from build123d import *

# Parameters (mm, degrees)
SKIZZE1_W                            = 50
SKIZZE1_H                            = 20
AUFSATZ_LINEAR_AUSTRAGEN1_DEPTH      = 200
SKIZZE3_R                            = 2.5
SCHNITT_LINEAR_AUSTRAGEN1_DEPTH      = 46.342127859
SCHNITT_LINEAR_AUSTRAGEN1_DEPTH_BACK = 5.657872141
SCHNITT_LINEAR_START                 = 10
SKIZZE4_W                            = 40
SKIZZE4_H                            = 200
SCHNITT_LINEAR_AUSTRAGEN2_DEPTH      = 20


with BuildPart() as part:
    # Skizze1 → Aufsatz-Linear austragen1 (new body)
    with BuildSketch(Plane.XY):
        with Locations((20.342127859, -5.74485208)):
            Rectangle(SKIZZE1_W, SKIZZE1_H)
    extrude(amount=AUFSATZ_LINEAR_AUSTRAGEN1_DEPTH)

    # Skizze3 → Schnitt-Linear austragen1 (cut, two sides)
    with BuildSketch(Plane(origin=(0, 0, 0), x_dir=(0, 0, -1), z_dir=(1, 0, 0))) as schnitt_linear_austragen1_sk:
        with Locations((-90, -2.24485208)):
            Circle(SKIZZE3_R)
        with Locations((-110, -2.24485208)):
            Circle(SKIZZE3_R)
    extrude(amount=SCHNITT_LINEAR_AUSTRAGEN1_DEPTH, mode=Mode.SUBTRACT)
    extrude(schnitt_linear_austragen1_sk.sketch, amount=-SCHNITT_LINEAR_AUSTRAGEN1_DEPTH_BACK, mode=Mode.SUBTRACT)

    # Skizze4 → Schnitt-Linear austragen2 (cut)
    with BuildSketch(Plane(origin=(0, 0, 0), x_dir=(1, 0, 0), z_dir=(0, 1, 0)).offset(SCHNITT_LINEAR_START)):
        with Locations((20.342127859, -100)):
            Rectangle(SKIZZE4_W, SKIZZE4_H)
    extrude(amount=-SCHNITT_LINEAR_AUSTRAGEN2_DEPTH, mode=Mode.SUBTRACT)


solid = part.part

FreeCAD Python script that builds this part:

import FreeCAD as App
import Part
import Sketcher

V = App.Vector
Q = App.Units.Quantity

doc = App.newDocument("Part")
params = doc.addObject("Spreadsheet::Sheet", "Params")
for row, (alias, value) in enumerate([
    ("sketch1_width", "50 mm"),
    ("sketch1_height", "20 mm"),
    ("pad1_length", "200 mm"),
    ("sketch2_diameter", "5 mm"),
    ("sketch3_width", "40 mm"),
    ("sketch3_height", "200 mm"),
    ("pocket2_length", "20 mm"),
], start=1):
    params.set(f"A{row}", alias)
    params.set(f"B{row}", "=" + value)
    params.setAlias(f"B{row}", alias)

body = doc.addObject("PartDesign::Body", "Body")

# Sketch on XY plane
sketch1 = doc.addObject("Sketcher::SketchObject", "Sketch")
body.addObject(sketch1)
sketch1.AttachmentSupport = (doc.XY_Plane, [""])
sketch1.MapMode = "FlatFace"
sketch1.addGeometry(Part.LineSegment(V(-4.657872, 4.255148, 0), V(-4.657872, -15.744852, 0)), False)
sketch1.addGeometry(Part.LineSegment(V(-4.657872, -15.744852, 0), V(45.342128, -15.744852, 0)), False)
sketch1.addGeometry(Part.LineSegment(V(45.342128, -15.744852, 0), V(45.342128, 4.255148, 0)), False)
sketch1.addGeometry(Part.LineSegment(V(45.342128, 4.255148, 0), V(-4.657872, 4.255148, 0)), False)
sketch1.addConstraint(Sketcher.Constraint("Coincident", 0, 2, 1, 1))
sketch1.addConstraint(Sketcher.Constraint("Coincident", 1, 2, 2, 1))
sketch1.addConstraint(Sketcher.Constraint("Coincident", 2, 2, 3, 1))
sketch1.addConstraint(Sketcher.Constraint("Coincident", 3, 2, 0, 1))
sketch1.addConstraint(Sketcher.Constraint("Vertical", 0))
sketch1.addConstraint(Sketcher.Constraint("Horizontal", 1))
sketch1.addConstraint(Sketcher.Constraint("Vertical", 2))
sketch1.addConstraint(Sketcher.Constraint("Horizontal", 3))
sketch1.addConstraint(Sketcher.Constraint("DistanceX", 1, 1, 1, 2, Q("50 mm")))
sketch1.addConstraint(Sketcher.Constraint("DistanceY", 0, 2, 0, 1, Q("20 mm")))
sketch1.addConstraint(Sketcher.Constraint("DistanceX", 0, 2, -1, 1, Q("4.657872 mm")))
sketch1.addConstraint(Sketcher.Constraint("DistanceY", 0, 2, -1, 1, Q("15.744852 mm")))
sketch1.setExpression("Constraints[8]", "Params.sketch1_width")
sketch1.setExpression("Constraints[9]", "Params.sketch1_height")
pad1 = doc.addObject("PartDesign::Pad", "Pad")
body.addObject(pad1)
pad1.Profile = sketch1
pad1.setExpression("Length", "Params.pad1_length")

# Sketch on YZ plane
sketch2 = doc.addObject("Sketcher::SketchObject", "Sketch001")
body.addObject(sketch2)
sketch2.AttachmentSupport = (doc.YZ_Plane, [""])
sketch2.MapMode = "FlatFace"
sketch2.addGeometry(Part.Circle(V(-2.244852, 90, 0), V(0, 0, 1), 2.5), False)
sketch2.addGeometry(Part.Circle(V(-2.244852, 110, 0), V(0, 0, 1), 2.5), False)
sketch2.addConstraint(Sketcher.Constraint("Equal", 0, 1))
sketch2.addConstraint(Sketcher.Constraint("Vertical", 0, 3, 1, 3))
sketch2.addConstraint(Sketcher.Constraint("Diameter", 0, Q("5 mm")))
sketch2.addConstraint(Sketcher.Constraint("DistanceY", -1, 1, 0, 3, Q("90 mm")))
sketch2.addConstraint(Sketcher.Constraint("DistanceY", -1, 1, 1, 3, Q("110 mm")))
sketch2.addConstraint(Sketcher.Constraint("DistanceX", 0, 3, -1, 1, Q("2.244852 mm")))
sketch2.setExpression("Constraints[2]", "Params.sketch2_diameter")
pocket1 = doc.addObject("PartDesign::Pocket", "Pocket")
body.addObject(pocket1)
pocket1.Profile = sketch2
pocket1.Type = "ThroughAll"
pocket1.Midplane = True

# Sketch on XZ plane
sketch3 = doc.addObject("Sketcher::SketchObject", "Sketch002")
body.addObject(sketch3)
sketch3.AttachmentSupport = (doc.XZ_Plane, [""])
sketch3.MapMode = "FlatFace"
sketch3.AttachmentOffset = App.Placement(V(0, 0, -10), App.Rotation())
sketch3.addGeometry(Part.LineSegment(V(0.342128, 0, 0), V(0.342128, 200, 0)), False)
sketch3.addGeometry(Part.LineSegment(V(0.342128, 200, 0), V(40.342128, 200, 0)), False)
sketch3.addGeometry(Part.LineSegment(V(40.342128, 200, 0), V(40.342128, 0, 0)), False)
sketch3.addGeometry(Part.LineSegment(V(40.342128, 0, 0), V(0.342128, 0, 0)), False)
sketch3.addConstraint(Sketcher.Constraint("Coincident", 0, 2, 1, 1))
sketch3.addConstraint(Sketcher.Constraint("Coincident", 1, 2, 2, 1))
sketch3.addConstraint(Sketcher.Constraint("Coincident", 2, 2, 3, 1))
sketch3.addConstraint(Sketcher.Constraint("Coincident", 3, 2, 0, 1))
sketch3.addConstraint(Sketcher.Constraint("Vertical", 0))
sketch3.addConstraint(Sketcher.Constraint("Horizontal", 1))
sketch3.addConstraint(Sketcher.Constraint("Vertical", 2))
sketch3.addConstraint(Sketcher.Constraint("Horizontal", 3))
sketch3.addConstraint(Sketcher.Constraint("PointOnObject", 2, 2, -1))
sketch3.addConstraint(Sketcher.Constraint("DistanceX", 1, 1, 1, 2, Q("40 mm")))
sketch3.addConstraint(Sketcher.Constraint("DistanceY", 0, 1, 0, 2, Q("200 mm")))
sketch3.addConstraint(Sketcher.Constraint("DistanceX", -1, 1, 0, 2, Q("0.342128 mm")))
sketch3.setExpression("Constraints[9]", "Params.sketch3_width")
sketch3.setExpression("Constraints[10]", "Params.sketch3_height")
pocket2 = doc.addObject("PartDesign::Pocket", "Pocket001")
body.addObject(pocket2)
pocket2.Profile = sketch3
pocket2.setExpression("Length", "Params.pocket2_length")
pocket2.Reversed = True

doc.recompute()
